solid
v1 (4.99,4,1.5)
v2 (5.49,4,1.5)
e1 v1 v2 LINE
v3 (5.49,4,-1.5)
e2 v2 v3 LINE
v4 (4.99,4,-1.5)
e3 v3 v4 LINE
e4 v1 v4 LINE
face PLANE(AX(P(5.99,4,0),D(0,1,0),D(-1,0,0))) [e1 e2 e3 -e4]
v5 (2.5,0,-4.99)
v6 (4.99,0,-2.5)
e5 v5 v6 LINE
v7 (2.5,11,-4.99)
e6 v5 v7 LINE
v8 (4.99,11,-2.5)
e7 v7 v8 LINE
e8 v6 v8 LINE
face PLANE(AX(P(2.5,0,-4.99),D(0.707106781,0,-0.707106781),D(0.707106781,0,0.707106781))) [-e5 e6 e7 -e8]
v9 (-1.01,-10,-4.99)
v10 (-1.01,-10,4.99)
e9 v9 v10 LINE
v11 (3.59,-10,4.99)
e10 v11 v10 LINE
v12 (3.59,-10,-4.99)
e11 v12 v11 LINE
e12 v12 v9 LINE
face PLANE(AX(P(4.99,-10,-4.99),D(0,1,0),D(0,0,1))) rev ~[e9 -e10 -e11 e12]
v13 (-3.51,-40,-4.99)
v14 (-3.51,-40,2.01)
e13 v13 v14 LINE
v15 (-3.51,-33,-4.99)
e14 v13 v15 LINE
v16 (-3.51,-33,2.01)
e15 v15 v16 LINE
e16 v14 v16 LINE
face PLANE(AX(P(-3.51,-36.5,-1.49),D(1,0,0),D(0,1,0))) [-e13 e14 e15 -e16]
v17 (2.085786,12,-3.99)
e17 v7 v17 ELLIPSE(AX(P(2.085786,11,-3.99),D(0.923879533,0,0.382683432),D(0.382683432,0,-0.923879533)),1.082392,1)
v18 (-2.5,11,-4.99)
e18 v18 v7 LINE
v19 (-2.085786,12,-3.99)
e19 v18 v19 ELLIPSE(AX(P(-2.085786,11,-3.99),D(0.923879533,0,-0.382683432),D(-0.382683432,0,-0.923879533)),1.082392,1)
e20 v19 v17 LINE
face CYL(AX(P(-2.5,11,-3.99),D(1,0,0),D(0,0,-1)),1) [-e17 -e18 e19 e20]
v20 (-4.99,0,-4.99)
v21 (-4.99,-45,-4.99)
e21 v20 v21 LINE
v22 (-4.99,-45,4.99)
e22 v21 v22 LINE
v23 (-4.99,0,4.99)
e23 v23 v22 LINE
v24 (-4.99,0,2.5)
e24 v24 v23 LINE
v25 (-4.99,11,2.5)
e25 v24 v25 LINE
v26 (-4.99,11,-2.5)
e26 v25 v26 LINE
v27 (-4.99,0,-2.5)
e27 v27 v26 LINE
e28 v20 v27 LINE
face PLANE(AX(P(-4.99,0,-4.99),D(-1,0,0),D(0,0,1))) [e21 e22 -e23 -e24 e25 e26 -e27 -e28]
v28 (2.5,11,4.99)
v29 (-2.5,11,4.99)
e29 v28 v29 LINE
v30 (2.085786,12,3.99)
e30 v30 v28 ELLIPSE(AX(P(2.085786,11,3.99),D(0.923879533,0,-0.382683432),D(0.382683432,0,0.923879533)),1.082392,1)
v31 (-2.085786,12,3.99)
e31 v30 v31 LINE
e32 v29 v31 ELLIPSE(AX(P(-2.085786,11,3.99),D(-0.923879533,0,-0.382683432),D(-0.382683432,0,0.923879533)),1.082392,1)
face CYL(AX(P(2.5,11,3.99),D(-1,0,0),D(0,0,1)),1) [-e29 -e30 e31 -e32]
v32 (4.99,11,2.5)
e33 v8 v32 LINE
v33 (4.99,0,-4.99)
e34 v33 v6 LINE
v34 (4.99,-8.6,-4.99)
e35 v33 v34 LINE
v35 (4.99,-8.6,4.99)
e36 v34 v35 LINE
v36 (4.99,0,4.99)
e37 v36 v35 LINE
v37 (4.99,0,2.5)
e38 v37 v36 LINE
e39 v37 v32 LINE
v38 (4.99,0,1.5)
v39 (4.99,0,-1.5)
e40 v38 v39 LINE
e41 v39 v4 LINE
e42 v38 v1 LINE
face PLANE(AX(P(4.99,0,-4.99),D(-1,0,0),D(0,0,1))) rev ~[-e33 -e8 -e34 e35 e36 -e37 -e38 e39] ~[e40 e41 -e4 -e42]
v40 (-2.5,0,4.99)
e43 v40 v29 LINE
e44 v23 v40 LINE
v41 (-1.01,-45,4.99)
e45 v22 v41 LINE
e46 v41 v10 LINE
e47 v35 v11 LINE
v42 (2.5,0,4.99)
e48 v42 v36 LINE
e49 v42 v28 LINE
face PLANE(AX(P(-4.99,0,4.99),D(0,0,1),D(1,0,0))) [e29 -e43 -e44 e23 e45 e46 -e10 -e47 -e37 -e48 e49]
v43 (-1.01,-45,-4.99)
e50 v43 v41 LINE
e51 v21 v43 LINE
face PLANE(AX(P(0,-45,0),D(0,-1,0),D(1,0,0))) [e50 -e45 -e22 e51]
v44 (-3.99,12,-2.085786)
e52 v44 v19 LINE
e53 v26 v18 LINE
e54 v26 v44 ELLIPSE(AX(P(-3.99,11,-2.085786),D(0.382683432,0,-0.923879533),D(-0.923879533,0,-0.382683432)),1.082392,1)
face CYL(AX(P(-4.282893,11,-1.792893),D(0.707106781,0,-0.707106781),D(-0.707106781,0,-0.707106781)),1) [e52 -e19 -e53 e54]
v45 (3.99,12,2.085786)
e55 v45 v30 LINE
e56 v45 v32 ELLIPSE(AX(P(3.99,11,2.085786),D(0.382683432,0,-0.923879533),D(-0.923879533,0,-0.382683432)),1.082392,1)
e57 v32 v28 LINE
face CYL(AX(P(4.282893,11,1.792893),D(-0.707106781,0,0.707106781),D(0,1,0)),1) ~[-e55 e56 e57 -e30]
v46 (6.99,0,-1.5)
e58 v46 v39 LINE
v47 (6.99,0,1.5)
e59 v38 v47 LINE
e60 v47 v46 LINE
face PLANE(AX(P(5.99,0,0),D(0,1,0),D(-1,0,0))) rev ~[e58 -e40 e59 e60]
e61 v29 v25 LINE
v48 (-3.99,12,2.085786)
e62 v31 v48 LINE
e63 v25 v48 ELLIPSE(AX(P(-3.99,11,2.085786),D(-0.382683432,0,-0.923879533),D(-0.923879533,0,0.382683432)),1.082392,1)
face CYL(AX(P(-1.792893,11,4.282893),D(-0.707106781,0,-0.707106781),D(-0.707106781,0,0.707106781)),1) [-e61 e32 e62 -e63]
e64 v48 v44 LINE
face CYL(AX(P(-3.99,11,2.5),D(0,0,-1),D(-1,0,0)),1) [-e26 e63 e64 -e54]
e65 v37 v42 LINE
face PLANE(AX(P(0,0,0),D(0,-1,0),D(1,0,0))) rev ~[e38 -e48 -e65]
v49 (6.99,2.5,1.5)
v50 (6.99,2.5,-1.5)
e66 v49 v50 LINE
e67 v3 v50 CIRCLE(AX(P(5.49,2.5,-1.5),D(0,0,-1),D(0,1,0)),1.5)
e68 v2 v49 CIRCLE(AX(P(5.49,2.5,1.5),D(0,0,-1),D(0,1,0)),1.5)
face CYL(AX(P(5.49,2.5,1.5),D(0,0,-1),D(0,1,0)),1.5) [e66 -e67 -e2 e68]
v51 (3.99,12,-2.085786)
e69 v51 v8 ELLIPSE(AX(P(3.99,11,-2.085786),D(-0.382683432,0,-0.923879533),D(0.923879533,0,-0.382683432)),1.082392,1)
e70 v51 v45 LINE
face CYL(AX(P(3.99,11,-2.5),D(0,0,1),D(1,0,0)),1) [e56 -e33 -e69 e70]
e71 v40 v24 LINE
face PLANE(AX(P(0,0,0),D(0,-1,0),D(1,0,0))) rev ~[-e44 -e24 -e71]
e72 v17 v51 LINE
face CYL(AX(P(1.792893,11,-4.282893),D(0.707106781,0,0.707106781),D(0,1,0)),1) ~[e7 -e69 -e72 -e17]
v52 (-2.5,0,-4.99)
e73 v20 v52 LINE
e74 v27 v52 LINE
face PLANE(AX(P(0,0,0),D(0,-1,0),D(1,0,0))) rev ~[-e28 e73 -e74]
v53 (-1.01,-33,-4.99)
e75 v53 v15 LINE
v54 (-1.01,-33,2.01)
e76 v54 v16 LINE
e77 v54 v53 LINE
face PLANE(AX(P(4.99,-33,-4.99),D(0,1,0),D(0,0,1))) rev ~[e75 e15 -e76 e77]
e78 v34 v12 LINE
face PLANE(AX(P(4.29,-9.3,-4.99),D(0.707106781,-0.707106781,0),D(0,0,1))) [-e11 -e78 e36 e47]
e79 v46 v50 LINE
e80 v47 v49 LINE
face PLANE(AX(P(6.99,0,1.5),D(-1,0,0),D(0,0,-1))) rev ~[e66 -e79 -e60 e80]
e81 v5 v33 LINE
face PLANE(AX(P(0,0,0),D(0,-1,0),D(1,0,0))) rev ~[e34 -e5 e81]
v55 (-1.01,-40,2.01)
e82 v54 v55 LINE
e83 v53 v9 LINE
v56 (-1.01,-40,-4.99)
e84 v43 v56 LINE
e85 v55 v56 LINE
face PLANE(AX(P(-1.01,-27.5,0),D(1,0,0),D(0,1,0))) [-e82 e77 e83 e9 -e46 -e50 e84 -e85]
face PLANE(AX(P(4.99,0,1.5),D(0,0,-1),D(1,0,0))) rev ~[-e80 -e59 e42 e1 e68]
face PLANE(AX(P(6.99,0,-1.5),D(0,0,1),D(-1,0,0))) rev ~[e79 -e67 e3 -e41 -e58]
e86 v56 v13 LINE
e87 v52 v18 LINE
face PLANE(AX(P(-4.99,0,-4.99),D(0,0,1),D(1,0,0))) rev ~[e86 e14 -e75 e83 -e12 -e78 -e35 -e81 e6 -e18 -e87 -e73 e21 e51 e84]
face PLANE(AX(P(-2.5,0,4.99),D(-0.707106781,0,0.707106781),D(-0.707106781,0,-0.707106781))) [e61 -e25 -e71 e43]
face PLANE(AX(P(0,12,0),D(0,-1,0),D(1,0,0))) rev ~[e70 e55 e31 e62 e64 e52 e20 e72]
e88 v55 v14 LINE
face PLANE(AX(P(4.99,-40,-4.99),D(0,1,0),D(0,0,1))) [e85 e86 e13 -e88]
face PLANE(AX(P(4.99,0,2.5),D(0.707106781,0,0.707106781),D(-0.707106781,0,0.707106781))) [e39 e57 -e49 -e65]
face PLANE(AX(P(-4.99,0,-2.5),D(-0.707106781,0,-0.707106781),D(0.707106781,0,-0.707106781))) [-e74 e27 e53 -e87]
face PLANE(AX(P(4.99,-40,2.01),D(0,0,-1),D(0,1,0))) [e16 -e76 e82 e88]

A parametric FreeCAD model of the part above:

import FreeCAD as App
import Part
import Sketcher
from FreeCAD import Vector


def edges_at(feature, points):
    """Names of the edges that pass closest to the given points."""
    edges = feature.Shape.Edges
    near = lambda p: min(range(len(edges)), key=lambda i: edges[i].distToShape(Part.Vertex(*p))[0])
    return sorted({f"Edge{near(p) + 1}" for p in points})


def add_polygon(sketch, points):
    """Adds a closed chain of lines whose ends are joined by coincident constraints."""
    first, n = sketch.GeometryCount, len(points)
    for a, b in zip(points, points[1:] + points[:1]):
        sketch.addGeometry(Part.LineSegment(App.Vector(*a, 0), App.Vector(*b, 0)), False)
    for i in range(n):
        sketch.addConstraint(Sketcher.Constraint("Coincident", first + i, 2, first + (i + 1) % n, 1))

doc = App.newDocument("Part")
body = doc.addObject("PartDesign::Body", "Body")

# Sketch on XZ plane
sketch1 = body.newObject("Sketcher::SketchObject", "Sketch")
sketch1.AttachmentSupport = (doc.getObject("XZ_Plane"), [""])
sketch1.MapMode = "FlatFace"
add_polygon(sketch1, [(-5, 5), (-5, -5), (5, -5), (5, 5)])  # lines 0-3
sketch1.addConstraint(Sketcher.Constraint("Vertical", 0))
sketch1.addConstraint(Sketcher.Constraint("Horizontal", 1))
sketch1.addConstraint(Sketcher.Constraint("Vertical", 2))
sketch1.addConstraint(Sketcher.Constraint("Horizontal", 3))
sketch1.addConstraint(Sketcher.Constraint("Symmetric", 0, 2, 2, 2, -1, 1))
sketch1.addConstraint(Sketcher.Constraint("Equal", 3, 0))
sketch1.addConstraint(Sketcher.Constraint("DistanceX", 1, 1, 1, 2, 9.98))
pad1 = body.newObject("PartDesign::Pad", "Pad")
pad1.Profile = sketch1
pad1.Length = 45

# Sketch on YZ plane
sketch2 = body.newObject("Sketcher::SketchObject", "Sketch001")
sketch2.AttachmentSupport = (doc.getObject("YZ_Plane"), [""])
sketch2.MapMode = "FlatFace"
sketch2.AttachmentOffset = App.Placement(Vector(0, 0, 4.99), App.Rotation())
add_polygon(sketch2, [(-40, 2), (-40, -5), (-33, -5), (-33, 2)])  # lines 0-3
sketch2.addConstraint(Sketcher.Constraint("Vertical", 0))
sketch2.addConstraint(Sketcher.Constraint("Horizontal", 1))
sketch2.addConstraint(Sketcher.Constraint("Vertical", 2))
sketch2.addConstraint(Sketcher.Constraint("Horizontal", 3))
sketch2.addConstraint(Sketcher.Constraint("Equal", 3, 0))
sketch2.addConstraint(Sketcher.Constraint("DistanceX", 1, 1, 1, 2, 7.0))
sketch2.addConstraint(Sketcher.Constraint("DistanceX", 0, 2, -1, 1, 40.0))
sketch2.addConstraint(Sketcher.Constraint("DistanceY", 0, 2, -1, 1, 4.99))
pocket1 = body.newObject("PartDesign::Pocket", "Pocket")
pocket1.Profile = sketch2
pocket1.Length = 8.5

# Sketch on XZ plane
sketch3 = body.newObject("Sketcher::SketchObject", "Sketch002")
sketch3.AttachmentSupport = (doc.getObject("XZ_Plane"), [""])
sketch3.MapMode = "FlatFace"
add_polygon(sketch3, [(2.5, 5), (5, 2.5), (5, -2.5), (2.5, -5), (-2.5, -5), (-5, -2.5), (-5, 2.5), (-2.5, 5)])  # lines 0-7
sketch3.addConstraint(Sketcher.Constraint("Vertical", 1))
sketch3.addConstraint(Sketcher.Constraint("Horizontal", 3))
sketch3.addConstraint(Sketcher.Constraint("Vertical", 5))
sketch3.addConstraint(Sketcher.Constraint("Horizontal", 7))
sketch3.addConstraint(Sketcher.Constraint("Symmetric", 0, 2, 4, 2, -1, 1))
sketch3.addConstraint(Sketcher.Constraint("Symmetric", 2, 2, 6, 2, -1, 1))
sketch3.addConstraint(Sketcher.Constraint("Perpendicular", 0, 2))
sketch3.addConstraint(Sketcher.Constraint("Perpendicular", 2, 4))
sketch3.addConstraint(Sketcher.Constraint("Perpendicular", 4, 6))
sketch3.addConstraint(Sketcher.Constraint("Horizontal", 1, 2, 4, 2))
sketch3.addConstraint(Sketcher.Constraint("Vertical", 3, 2, 6, 2))
sketch3.addConstraint(Sketcher.Constraint("Equal", 7, 1))
sketch3.addConstraint(Sketcher.Constraint("DistanceX", 3, 2, 3, 1, 5.0))
sketch3.addConstraint(Sketcher.Constraint("DistanceX", -1, 1, 0, 2, 4.99))
pad2 = body.newObject("PartDesign::Pad", "Pad001")
pad2.Profile = sketch3
pad2.Length = 12
pad2.Reversed = True
doc.recompute()

fillet = body.newObject("PartDesign::Fillet", "Fillet")
fillet.Base = (pad2, edges_at(pad2, [
    (3.745, 12, 3.745),
    (0, 12, 4.99),
    (-3.745, 12, 3.745),
    (-4.99, 12, 0),
    (-3.745, 12, -3.745),
    (0, 12, -4.99),
    (3.745, 12, -3.745),
    (4.99, 12, 0),
]))
fillet.Radius = 1

# Sketch on YZ plane
sketch4 = body.newObject("Sketcher::SketchObject", "Sketch003")
sketch4.AttachmentSupport = (doc.getObject("YZ_Plane"), [""])
sketch4.MapMode = "FlatFace"
sketch4.AttachmentOffset = App.Placement(Vector(0, 0, 4.99), App.Rotation())
add_polygon(sketch4, [(-45, 5), (-45, -5), (-10, -5), (-10, 5)])  # lines 0-3
sketch4.addConstraint(Sketcher.Constraint("Vertical", 0))
sketch4.addConstraint(Sketcher.Constraint("Horizontal", 1))
sketch4.addConstraint(Sketcher.Constraint("Vertical", 2))
sketch4.addConstraint(Sketcher.Constraint("Horizontal", 3))
sketch4.addConstraint(Sketcher.Constraint("DistanceX", 1, 1, 1, 2, 35.0))
sketch4.addConstraint(Sketcher.Constraint("DistanceX", 0, 2, -1, 1, 45.0))
sketch4.addConstraint(Sketcher.Constraint("DistanceY", 0, 2, 0, 1, 9.98))
sketch4.addConstraint(Sketcher.Constraint("DistanceY", 0, 2, -1, 1, 4.99))
pocket2 = body.newObject("PartDesign::Pocket", "Pocket001")
pocket2.Profile = sketch4
pocket2.Length = 6
doc.recompute()

chamfer = body.newObject("PartDesign::Chamfer", "Chamfer")
chamfer.Base = (pocket2, edges_at(pocket2, [(4.99, -10, 0)]))
chamfer.Size = 1.4

# Sketch on XZ plane
sketch5 = body.newObject("Sketcher::SketchObject", "Sketch004")
sketch5.AttachmentSupport = (doc.getObject("XZ_Plane"), [""])
sketch5.MapMode = "FlatFace"
add_polygon(sketch5, [(7, 1.5), (5, 1.5), (5, -1.5), (7, -1.5)])  # lines 0-3
sketch5.addConstraint(Sketcher.Constraint("Horizontal", 0))
sketch5.addConstraint(Sketcher.Constraint("Vertical", 1))
sketch5.addConstraint(Sketcher.Constraint("Horizontal", 2))
sketch5.addConstraint(Sketcher.Constraint("Vertical", 3))
sketch5.addConstraint(Sketcher.Constraint("DistanceX", 0, 2, 0, 1, 2.0))
sketch5.addConstraint(Sketcher.Constraint("DistanceY", 1, 2, 1, 1, 3.0))
sketch5.addConstraint(Sketcher.Constraint("DistanceY", -1, 1, 0, 2, 1.5))
sketch5.addConstraint(Sketcher.Constraint("DistanceX", -1, 1, 0, 2, 4.99))
pad3 = body.newObject("PartDesign::Pad", "Pad002")
pad3.Profile = sketch5
pad3.Length = 4
pad3.Reversed = True
doc.recompute()

fillet2 = body.newObject("PartDesign::Fillet", "Fillet001")
fillet2.Base = (pad3, edges_at(pad3, [(6.99, 4, 0)]))
fillet2.Radius = 1.5

doc.recompute()
